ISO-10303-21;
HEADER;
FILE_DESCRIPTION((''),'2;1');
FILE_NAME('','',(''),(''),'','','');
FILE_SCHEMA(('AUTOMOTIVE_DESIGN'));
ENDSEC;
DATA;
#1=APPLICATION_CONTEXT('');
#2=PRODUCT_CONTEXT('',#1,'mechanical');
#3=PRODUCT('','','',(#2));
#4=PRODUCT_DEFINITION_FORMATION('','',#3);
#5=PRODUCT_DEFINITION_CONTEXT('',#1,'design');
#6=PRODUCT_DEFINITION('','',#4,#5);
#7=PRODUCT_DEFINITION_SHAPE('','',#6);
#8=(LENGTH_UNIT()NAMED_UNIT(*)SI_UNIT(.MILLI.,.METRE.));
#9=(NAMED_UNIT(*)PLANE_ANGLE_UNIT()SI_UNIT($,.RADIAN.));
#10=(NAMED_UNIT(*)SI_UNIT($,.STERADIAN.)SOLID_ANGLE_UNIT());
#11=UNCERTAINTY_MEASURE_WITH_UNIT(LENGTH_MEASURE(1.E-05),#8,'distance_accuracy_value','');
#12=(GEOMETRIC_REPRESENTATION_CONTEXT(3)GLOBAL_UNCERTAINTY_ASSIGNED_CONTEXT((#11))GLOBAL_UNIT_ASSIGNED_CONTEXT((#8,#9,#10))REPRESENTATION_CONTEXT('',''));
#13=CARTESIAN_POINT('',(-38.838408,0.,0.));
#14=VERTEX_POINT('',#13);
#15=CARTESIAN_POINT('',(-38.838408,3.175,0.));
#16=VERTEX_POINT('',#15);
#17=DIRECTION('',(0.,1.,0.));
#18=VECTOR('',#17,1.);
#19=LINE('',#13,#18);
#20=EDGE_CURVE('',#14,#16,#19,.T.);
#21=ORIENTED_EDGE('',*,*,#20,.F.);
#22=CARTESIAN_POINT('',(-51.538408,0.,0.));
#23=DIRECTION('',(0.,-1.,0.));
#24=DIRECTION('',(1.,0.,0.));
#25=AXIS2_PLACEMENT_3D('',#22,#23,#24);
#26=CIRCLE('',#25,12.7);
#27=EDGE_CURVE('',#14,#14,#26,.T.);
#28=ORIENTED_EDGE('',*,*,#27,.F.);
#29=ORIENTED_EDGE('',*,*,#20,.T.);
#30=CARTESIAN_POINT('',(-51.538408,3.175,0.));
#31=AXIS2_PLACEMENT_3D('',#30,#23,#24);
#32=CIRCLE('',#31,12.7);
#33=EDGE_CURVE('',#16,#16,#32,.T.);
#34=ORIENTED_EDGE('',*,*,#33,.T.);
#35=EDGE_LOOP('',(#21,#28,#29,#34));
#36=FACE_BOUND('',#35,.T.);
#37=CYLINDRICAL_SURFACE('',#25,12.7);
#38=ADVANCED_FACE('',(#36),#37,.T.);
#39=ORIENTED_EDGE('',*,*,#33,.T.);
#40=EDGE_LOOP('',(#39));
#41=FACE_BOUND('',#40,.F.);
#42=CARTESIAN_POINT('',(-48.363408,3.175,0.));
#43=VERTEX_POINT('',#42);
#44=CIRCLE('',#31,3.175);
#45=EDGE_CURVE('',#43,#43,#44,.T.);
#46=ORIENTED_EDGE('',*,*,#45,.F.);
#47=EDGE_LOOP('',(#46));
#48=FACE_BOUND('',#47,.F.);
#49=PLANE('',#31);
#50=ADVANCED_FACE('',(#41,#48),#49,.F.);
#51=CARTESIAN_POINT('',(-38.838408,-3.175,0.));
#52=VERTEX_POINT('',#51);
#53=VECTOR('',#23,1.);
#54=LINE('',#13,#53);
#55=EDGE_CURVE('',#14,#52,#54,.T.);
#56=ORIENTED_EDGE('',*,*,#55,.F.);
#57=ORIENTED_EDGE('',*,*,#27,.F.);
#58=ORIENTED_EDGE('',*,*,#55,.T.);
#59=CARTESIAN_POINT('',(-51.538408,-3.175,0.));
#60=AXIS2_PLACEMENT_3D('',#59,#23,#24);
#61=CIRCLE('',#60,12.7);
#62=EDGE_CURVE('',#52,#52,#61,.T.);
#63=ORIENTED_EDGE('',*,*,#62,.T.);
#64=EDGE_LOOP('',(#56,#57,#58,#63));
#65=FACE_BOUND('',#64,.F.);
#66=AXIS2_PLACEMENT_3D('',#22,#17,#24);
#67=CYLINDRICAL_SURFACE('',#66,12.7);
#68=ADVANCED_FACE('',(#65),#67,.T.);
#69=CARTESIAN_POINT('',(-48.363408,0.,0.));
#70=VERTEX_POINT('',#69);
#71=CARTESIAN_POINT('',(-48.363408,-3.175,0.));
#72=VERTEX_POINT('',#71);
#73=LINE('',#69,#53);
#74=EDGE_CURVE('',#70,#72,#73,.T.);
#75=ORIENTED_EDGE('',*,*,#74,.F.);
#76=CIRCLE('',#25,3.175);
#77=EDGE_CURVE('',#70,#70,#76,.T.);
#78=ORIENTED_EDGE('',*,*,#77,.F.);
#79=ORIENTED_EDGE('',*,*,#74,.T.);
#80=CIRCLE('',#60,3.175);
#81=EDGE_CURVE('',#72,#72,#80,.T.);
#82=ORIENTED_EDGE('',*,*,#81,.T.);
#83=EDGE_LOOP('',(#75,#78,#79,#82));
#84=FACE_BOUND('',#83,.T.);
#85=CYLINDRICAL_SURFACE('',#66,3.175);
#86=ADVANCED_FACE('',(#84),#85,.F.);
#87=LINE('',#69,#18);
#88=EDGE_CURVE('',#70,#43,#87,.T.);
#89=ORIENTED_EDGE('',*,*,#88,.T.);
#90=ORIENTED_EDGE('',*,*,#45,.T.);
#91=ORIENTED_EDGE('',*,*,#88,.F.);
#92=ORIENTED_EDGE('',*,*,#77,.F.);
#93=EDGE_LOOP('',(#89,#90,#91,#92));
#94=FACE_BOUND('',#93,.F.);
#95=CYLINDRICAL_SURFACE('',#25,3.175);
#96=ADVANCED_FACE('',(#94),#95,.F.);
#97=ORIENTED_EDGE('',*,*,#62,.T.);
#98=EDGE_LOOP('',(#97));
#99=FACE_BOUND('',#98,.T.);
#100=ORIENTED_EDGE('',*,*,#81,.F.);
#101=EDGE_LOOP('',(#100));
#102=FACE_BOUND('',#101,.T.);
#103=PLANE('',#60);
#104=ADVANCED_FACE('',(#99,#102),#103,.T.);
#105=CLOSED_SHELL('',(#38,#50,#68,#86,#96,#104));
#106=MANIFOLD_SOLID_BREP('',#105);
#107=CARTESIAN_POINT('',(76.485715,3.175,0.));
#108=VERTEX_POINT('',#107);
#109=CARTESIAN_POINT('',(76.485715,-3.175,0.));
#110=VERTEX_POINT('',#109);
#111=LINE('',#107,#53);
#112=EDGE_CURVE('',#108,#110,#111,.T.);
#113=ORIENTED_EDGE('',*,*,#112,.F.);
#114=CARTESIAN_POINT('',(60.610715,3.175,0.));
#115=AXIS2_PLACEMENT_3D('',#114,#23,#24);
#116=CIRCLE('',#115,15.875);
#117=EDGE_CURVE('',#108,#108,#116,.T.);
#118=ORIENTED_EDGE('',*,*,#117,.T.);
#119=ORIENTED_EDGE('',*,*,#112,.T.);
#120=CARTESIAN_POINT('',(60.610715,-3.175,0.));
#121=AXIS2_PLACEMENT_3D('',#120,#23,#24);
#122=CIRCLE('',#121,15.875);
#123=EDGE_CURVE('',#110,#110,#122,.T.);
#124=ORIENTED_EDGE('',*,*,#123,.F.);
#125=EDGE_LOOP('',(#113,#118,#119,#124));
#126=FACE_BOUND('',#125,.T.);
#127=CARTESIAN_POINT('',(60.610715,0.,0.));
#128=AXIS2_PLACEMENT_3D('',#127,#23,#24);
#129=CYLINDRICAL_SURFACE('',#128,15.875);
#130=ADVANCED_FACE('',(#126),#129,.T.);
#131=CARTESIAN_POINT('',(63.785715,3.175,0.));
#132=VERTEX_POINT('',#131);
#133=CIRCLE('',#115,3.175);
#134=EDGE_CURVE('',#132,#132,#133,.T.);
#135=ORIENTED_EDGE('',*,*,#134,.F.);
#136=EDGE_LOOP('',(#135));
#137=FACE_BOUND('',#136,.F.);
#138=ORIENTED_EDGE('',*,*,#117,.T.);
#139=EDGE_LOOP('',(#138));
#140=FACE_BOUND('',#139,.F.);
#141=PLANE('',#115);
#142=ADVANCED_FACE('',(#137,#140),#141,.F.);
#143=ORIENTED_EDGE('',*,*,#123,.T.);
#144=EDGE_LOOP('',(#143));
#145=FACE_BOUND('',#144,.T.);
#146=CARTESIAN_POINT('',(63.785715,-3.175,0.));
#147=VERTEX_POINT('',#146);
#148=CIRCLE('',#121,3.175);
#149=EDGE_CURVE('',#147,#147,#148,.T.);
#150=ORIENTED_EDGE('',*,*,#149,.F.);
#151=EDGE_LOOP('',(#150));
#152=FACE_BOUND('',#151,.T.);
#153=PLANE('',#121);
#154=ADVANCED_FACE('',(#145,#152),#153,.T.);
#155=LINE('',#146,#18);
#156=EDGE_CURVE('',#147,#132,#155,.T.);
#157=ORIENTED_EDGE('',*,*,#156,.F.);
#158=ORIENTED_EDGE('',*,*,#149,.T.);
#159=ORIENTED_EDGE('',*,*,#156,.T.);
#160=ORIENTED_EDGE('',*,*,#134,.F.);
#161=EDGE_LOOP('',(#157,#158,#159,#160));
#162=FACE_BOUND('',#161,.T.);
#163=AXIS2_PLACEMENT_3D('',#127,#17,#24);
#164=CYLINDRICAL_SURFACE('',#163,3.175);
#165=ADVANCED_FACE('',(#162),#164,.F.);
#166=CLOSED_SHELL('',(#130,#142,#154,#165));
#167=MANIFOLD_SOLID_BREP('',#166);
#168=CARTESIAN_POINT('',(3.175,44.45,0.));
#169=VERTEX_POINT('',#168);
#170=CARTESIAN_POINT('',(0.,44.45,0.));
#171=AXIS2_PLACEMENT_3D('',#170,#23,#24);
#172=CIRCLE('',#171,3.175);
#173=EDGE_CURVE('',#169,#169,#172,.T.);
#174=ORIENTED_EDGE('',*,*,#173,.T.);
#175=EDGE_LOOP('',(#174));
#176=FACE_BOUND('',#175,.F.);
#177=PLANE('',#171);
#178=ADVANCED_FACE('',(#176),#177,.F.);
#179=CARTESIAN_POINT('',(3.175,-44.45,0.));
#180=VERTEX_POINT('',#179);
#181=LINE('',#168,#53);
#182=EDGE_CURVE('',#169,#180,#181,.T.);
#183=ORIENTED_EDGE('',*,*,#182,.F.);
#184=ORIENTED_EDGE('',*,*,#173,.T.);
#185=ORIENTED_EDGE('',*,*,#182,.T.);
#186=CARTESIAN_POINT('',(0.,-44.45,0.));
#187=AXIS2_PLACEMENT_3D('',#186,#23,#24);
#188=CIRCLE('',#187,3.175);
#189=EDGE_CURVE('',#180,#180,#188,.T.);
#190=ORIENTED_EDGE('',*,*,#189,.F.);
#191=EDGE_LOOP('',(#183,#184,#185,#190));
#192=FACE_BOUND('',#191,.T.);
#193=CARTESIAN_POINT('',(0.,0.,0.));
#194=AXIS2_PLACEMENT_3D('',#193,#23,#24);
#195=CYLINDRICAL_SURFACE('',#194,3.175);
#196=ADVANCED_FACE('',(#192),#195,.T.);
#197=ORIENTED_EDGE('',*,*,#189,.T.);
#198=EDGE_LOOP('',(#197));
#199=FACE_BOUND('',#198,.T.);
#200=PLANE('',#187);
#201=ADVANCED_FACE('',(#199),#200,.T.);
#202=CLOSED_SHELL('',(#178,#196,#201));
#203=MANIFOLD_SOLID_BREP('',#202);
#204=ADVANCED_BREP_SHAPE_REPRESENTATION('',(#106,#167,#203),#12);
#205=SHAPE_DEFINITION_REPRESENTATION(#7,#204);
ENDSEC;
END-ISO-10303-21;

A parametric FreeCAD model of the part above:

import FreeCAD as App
import Part
import Sketcher
from FreeCAD import Vector
Q = App.Units.Quantity

doc = App.newDocument("Part")
body = doc.addObject("PartDesign::Body", "Body")
body.AllowCompound = True

sketch1 = doc.addObject("Sketcher::SketchObject", "Sketch")
body.addObject(sketch1)
sketch1.AttachmentSupport = (doc.XZ_Plane, [""])
sketch1.MapMode = "FlatFace"
sketch1.addGeometry([
    Part.Circle(Vector(-51.538408, 0, 0), Vector(0, 0, 1), 12.7),
    Part.Circle(Vector(-51.538408, 0, 0), Vector(0, 0, 1), 3.175),
    Part.Circle(Vector(60.610715, 0, 0), Vector(0, 0, 1), 15.875),
    Part.Circle(Vector(60.610715, 0, 0), Vector(0, 0, 1), 3.175),
], False)
sketch1.addConstraint([
    Sketcher.Constraint("Coincident", 1, 3, 0, 3),
    Sketcher.Constraint("Coincident", 3, 3, 2, 3),
    Sketcher.Constraint("Equal", 1, 3),
    Sketcher.Constraint("PointOnObject", 0, 3, -1),
    Sketcher.Constraint("PointOnObject", 2, 3, -1),
    Sketcher.Constraint("Diameter", 0, Q("1 in")),
    Sketcher.Constraint("Diameter", 1, Q("0.25 in")),
    Sketcher.Constraint("Diameter", 2, Q("1.25 in")),
    Sketcher.Constraint("DistanceX", 0, 3, -1, 1, Q("51.538408 mm")),
    Sketcher.Constraint("DistanceX", -1, 1, 2, 3, Q("60.610715 mm")),
])
pad1 = doc.addObject("PartDesign::Pad", "Pad")
body.addObject(pad1)
pad1.Profile = sketch1
pad1.Length = Q("0.25 in")
pad1.Midplane = True
body2 = doc.addObject("PartDesign::Body", "Body001")

sketch2 = doc.addObject("Sketcher::SketchObject", "Sketch001")
body2.addObject(sketch2)
sketch2.AttachmentSupport = (doc.getObject("XZ_Plane001"), [""])
sketch2.MapMode = "FlatFace"
sketch2.addGeometry(Part.Circle(Vector(0, 0, 0), Vector(0, 0, 1), 3.175), False)
sketch2.addConstraint([
    Sketcher.Constraint("Coincident", 0, 3, -1, 1),
    Sketcher.Constraint("Diameter", 0, Q("0.25 in")),
])
pad2 = doc.addObject("PartDesign::Pad", "Pad001")
body2.addObject(pad2)
pad2.Profile = sketch2
pad2.Length = Q("3.5 in")
pad2.Midplane = True

doc.recompute()
